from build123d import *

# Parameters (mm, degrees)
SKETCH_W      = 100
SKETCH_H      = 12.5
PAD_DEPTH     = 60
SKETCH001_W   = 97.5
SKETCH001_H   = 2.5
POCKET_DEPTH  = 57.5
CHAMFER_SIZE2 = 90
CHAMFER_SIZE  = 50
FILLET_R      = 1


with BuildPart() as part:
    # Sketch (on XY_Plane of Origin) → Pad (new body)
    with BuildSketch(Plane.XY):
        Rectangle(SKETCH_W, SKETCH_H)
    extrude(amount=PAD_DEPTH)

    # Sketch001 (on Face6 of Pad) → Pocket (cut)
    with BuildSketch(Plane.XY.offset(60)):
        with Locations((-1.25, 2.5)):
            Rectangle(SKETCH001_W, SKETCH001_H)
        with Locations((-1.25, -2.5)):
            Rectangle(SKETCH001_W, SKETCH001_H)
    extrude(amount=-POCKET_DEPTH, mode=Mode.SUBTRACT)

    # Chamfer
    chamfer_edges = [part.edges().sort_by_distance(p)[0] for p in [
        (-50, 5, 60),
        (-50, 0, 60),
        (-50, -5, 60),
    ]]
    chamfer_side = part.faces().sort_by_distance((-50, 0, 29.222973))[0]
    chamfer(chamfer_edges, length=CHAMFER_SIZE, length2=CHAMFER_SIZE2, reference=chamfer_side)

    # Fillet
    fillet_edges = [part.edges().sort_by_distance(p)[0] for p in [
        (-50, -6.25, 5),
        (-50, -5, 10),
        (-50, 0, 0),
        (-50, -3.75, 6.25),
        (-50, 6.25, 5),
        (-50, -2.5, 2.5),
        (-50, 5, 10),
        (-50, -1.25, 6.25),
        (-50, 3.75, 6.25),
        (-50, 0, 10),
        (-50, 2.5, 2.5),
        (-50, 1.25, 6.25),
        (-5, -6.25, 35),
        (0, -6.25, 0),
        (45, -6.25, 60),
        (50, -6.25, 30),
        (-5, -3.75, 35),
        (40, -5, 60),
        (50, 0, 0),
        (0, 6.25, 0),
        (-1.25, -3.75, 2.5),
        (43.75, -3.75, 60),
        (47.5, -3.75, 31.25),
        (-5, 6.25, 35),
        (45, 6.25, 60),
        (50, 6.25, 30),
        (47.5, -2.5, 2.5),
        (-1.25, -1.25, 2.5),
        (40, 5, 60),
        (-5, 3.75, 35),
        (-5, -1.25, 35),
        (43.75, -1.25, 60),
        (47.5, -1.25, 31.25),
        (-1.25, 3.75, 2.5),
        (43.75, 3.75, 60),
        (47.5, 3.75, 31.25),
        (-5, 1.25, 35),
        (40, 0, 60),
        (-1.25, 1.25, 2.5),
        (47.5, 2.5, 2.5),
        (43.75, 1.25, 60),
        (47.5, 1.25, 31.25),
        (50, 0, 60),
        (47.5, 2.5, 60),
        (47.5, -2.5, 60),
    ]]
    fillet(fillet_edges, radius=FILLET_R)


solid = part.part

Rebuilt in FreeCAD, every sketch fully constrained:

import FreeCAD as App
import Part
import Sketcher

V = App.Vector
Q = App.Units.Quantity


def edges_at(feature, points):
    """Names of the edges that pass closest to the given points."""
    edges = feature.Shape.Edges
    near = lambda p: min(range(len(edges)), key=lambda i: edges[i].distToShape(Part.Vertex(*p))[0])
    return sorted({f"Edge{near(p) + 1}" for p in points})


def add_polygon(sketch, points):
    """Adds a closed chain of lines whose ends are joined by coincident constraints."""
    first, n = sketch.GeometryCount, len(points)
    for a, b in zip(points, points[1:] + points[:1]):
        sketch.addGeometry(Part.LineSegment(App.Vector(*a, 0), App.Vector(*b, 0)), False)
    for i in range(n):
        sketch.addConstraint(Sketcher.Constraint("Coincident", first + i, 2, first + (i + 1) % n, 1))

doc = App.newDocument("Part")
body = doc.addObject("PartDesign::Body", "Body")

sketch1 = body.newObject("Sketcher::SketchObject", "Sketch")
sketch1.AttachmentSupport = (doc.getObject("XY_Plane"), [""])
sketch1.MapMode = "FlatFace"
add_polygon(sketch1, [(-50, 6), (-50, -6), (50, -6), (50, 6)])
sketch1.addConstraint([
    Sketcher.Constraint("Vertical", 0),
    Sketcher.Constraint("Horizontal", 1),
    Sketcher.Constraint("Vertical", 2),
    Sketcher.Constraint("Horizontal", 3),
    Sketcher.Constraint("Symmetric", 0, 2, 2, 2, -1, 1),
    Sketcher.Constraint("DistanceX", 1, 1, 1, 2, Q("100 mm")),
    Sketcher.Constraint("DistanceY", 0, 2, 0, 1, Q("12.5 mm")),
])
pad1 = body.newObject("PartDesign::Pad", "Pad")
pad1.Profile = sketch1
pad1.Length = 60

sketch2 = body.newObject("Sketcher::SketchObject", "Sketch001")
sketch2.AttachmentSupport = (doc.getObject("XY_Plane"), [""])
sketch2.MapMode = "FlatFace"
sketch2.AttachmentOffset = App.Placement(V(0, 0, 60), App.Rotation())
add_polygon(sketch2, [(-50, 3.8), (-50, 1.2), (47.5, 1.2), (47.5, 3.8)])
add_polygon(sketch2, [(-50, -1.2), (-50, -3.8), (47.5, -3.8), (47.5, -1.2)])
sketch2.addConstraint([
    Sketcher.Constraint("Vertical", 0),
    Sketcher.Constraint("Horizontal", 1),
    Sketcher.Constraint("Vertical", 2),
    Sketcher.Constraint("Horizontal", 3),
    Sketcher.Constraint("Vertical", 4),
    Sketcher.Constraint("Horizontal", 5),
    Sketcher.Constraint("Vertical", 6),
    Sketcher.Constraint("Horizontal", 7),
    Sketcher.Constraint("Symmetric", 3, 2, 4, 2, -1),
    Sketcher.Constraint("Symmetric", 1, 2, 6, 2, -1),
    Sketcher.Constraint("DistanceX", 1, 1, 1, 2, Q("97.5 mm")),
    Sketcher.Constraint("DistanceY", 0, 2, 0, 1, Q("2.5 mm")),
    Sketcher.Constraint("DistanceX", 0, 2, -1, 1, Q("50 mm")),
    Sketcher.Constraint("DistanceY", 4, 2, 0, 2, Q("5 mm")),
])
pocket1 = body.newObject("PartDesign::Pocket", "Pocket")
pocket1.Profile = sketch2
pocket1.Length = 57.5
doc.recompute()

chamfer = body.newObject("PartDesign::Chamfer", "Chamfer")
chamfer.Base = (pocket1, edges_at(pocket1, [(-50, 5, 60), (-50, 0, 60), (-50, -5, 60)]))
chamfer.ChamferType = "Two distances"
chamfer.Size = 50
chamfer.Size2 = 90
doc.recompute()

fillet = body.newObject("PartDesign::Fillet", "Fillet")
fillet.Base = (chamfer, ["Edge1"])
fillet.UseAllEdges = True
fillet.Radius = 1

doc.recompute()
